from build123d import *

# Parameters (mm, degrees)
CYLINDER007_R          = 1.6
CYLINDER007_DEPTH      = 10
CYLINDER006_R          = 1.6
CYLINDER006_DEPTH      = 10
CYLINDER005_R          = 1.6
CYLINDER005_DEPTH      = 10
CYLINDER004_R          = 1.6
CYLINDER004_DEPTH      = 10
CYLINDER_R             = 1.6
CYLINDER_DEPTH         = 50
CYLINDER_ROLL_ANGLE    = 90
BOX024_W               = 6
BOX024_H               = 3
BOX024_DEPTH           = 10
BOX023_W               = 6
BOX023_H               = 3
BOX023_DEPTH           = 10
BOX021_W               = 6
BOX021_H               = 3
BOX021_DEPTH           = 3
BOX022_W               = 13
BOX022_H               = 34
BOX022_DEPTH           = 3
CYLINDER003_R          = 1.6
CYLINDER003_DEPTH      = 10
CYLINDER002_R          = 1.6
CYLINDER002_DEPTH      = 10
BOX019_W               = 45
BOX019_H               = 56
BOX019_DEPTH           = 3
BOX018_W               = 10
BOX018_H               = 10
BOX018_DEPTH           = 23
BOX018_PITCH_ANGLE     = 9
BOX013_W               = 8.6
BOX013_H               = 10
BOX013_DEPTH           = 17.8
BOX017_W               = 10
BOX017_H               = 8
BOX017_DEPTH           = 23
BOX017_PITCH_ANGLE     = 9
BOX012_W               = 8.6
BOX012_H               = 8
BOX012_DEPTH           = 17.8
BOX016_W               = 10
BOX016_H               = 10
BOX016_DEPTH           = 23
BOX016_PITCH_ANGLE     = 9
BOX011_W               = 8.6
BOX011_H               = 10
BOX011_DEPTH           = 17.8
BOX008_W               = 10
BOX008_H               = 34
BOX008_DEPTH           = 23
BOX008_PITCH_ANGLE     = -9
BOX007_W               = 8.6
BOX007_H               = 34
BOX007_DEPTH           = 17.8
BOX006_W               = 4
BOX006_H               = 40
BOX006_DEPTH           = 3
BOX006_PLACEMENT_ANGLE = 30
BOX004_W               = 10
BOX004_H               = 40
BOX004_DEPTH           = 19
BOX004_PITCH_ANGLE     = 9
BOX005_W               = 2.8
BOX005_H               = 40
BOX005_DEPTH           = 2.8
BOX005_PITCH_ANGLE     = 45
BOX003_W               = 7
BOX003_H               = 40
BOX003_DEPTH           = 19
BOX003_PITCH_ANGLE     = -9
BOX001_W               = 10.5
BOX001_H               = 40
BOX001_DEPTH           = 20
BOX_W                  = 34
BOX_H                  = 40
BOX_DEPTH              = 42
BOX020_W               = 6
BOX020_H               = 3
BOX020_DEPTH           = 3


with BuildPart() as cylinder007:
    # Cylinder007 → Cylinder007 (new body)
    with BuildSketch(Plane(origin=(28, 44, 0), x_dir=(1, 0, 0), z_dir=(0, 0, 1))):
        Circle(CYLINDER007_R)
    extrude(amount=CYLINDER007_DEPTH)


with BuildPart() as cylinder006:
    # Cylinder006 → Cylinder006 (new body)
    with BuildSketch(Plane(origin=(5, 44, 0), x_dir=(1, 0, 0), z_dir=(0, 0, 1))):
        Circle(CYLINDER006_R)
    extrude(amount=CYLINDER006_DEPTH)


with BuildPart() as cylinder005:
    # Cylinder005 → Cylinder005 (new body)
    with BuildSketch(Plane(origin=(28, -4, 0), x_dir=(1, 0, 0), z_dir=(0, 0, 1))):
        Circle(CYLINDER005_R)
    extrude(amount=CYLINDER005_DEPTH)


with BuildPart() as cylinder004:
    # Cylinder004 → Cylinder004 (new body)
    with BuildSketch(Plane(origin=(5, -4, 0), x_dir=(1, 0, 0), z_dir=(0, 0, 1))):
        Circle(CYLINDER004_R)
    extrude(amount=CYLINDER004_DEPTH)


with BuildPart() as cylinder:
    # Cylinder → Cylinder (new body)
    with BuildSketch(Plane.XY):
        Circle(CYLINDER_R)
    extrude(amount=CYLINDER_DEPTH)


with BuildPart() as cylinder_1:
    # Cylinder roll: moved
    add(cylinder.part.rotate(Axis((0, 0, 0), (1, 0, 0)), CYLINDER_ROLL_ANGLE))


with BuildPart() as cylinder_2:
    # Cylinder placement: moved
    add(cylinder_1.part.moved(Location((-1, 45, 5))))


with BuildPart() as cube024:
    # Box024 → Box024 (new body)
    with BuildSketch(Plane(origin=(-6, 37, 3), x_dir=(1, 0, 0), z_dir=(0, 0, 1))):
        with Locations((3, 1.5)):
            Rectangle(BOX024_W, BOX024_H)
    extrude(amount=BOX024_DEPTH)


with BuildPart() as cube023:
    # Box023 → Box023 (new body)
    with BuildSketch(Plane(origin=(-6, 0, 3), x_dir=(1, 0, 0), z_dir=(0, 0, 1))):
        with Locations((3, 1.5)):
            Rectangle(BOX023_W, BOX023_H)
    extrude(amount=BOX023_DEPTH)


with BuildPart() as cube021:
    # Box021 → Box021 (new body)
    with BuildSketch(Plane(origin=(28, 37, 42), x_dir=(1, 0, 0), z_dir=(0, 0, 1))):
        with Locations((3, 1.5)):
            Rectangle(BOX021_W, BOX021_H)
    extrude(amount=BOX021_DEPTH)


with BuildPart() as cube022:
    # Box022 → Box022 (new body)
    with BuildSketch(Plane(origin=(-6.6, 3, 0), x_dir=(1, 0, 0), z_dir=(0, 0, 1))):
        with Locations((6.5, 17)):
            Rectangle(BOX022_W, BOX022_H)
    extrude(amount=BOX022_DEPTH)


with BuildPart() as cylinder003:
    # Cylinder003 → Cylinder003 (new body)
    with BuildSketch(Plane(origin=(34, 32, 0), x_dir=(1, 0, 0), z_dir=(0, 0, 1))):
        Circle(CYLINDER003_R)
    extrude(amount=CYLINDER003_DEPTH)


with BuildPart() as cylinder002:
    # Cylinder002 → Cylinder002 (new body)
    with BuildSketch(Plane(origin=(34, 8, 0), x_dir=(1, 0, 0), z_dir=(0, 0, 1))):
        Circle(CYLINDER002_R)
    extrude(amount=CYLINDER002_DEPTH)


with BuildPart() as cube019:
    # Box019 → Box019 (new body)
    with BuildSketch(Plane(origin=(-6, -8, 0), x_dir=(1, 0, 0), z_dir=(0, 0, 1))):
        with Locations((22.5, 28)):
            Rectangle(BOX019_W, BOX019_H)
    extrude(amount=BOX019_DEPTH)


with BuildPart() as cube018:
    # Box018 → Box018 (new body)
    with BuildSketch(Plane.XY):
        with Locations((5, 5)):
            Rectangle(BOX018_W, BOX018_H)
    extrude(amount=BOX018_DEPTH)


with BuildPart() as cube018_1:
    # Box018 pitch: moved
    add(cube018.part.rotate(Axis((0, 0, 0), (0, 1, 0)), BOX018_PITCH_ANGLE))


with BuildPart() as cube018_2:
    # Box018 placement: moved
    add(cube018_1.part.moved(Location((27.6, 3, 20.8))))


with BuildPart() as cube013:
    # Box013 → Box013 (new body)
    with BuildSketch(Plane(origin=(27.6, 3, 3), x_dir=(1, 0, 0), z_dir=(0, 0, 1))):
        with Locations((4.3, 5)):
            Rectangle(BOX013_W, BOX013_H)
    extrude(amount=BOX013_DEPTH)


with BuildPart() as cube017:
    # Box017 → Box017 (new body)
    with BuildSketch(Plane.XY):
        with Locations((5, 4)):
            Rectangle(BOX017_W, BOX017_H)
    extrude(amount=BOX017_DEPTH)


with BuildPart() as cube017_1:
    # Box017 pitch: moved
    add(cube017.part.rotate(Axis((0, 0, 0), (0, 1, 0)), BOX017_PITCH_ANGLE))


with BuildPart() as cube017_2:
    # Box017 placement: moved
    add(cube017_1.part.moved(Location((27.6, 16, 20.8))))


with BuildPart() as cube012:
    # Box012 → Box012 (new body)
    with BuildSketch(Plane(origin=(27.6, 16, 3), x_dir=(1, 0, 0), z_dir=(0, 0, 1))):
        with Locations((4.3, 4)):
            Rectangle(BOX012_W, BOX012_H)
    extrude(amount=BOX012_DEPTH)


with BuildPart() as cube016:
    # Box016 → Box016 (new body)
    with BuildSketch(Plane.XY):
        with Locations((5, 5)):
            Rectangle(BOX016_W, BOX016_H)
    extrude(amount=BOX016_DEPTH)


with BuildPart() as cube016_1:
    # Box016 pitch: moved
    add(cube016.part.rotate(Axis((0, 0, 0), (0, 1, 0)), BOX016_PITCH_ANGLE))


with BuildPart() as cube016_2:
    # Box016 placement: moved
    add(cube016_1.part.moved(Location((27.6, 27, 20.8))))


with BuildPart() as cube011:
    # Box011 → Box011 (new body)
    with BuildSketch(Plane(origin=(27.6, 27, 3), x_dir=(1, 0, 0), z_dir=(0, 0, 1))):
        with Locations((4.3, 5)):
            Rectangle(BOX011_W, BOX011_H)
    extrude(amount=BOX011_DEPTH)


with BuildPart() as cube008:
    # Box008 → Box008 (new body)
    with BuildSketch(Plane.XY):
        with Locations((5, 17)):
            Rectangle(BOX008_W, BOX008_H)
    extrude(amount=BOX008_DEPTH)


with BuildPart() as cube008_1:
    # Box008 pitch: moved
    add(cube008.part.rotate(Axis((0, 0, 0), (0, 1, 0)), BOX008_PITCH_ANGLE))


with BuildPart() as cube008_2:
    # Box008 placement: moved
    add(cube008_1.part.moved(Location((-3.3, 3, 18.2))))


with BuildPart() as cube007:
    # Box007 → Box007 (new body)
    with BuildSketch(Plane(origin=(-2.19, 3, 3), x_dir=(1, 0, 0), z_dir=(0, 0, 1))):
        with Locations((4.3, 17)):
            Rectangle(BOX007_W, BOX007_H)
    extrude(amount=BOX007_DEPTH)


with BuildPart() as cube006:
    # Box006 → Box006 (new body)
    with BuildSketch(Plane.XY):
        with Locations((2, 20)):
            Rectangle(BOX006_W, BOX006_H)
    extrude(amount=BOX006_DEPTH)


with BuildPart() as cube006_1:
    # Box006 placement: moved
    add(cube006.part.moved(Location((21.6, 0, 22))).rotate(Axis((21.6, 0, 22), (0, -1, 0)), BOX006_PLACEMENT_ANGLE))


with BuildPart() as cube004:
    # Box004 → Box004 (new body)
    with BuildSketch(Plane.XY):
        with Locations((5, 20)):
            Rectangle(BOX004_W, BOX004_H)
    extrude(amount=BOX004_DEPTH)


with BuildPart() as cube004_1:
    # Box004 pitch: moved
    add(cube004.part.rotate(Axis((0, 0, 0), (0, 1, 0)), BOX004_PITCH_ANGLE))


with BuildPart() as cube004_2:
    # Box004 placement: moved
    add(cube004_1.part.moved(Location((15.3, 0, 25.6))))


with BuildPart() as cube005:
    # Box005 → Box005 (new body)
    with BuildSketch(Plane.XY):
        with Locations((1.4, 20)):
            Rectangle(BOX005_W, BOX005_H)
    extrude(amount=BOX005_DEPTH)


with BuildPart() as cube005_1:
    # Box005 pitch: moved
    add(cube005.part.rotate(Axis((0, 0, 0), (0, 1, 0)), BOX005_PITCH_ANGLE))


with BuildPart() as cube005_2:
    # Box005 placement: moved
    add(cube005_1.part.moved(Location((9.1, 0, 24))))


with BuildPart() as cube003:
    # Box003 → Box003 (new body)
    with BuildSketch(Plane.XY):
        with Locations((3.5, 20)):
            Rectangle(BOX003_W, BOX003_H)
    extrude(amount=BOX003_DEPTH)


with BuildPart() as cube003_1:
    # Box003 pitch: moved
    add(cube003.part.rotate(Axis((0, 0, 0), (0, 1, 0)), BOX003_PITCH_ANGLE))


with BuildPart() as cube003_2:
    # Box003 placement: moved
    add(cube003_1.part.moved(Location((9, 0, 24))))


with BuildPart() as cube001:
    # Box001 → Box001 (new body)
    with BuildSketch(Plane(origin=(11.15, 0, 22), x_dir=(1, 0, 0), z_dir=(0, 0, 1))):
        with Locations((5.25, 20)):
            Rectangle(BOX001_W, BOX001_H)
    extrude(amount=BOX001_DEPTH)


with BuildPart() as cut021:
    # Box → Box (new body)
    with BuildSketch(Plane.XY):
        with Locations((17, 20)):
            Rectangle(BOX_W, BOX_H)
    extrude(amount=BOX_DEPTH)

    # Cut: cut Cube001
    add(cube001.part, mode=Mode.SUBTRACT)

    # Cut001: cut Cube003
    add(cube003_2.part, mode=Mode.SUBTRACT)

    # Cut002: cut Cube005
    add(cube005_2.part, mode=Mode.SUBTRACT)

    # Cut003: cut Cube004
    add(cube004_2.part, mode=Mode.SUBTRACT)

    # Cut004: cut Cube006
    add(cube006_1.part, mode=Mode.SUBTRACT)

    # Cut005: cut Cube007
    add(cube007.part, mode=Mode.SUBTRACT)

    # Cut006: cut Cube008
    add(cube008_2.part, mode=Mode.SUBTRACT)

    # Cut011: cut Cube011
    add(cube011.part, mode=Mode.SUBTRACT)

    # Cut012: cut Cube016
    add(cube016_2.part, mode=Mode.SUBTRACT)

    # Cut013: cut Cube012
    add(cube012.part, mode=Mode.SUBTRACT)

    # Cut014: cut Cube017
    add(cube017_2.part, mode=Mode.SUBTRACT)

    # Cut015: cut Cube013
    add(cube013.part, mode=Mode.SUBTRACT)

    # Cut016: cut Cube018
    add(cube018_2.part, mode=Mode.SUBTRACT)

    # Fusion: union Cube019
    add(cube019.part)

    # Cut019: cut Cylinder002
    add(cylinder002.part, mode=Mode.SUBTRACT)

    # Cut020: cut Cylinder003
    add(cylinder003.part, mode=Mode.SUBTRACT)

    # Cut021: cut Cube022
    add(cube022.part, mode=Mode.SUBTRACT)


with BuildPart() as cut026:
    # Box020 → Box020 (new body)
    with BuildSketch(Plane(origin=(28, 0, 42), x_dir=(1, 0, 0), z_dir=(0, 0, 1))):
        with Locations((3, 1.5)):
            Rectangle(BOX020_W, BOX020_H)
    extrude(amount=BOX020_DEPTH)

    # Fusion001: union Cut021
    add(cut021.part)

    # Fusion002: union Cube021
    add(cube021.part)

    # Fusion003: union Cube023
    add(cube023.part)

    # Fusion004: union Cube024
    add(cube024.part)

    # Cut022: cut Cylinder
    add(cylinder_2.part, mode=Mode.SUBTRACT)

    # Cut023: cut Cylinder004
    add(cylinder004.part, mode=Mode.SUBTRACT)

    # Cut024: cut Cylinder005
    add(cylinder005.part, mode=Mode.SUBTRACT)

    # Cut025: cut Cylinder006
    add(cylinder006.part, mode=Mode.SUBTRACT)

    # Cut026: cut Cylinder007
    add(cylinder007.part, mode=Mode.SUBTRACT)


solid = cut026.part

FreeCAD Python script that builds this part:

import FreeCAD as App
import Part
import Sketcher

V = App.Vector
Q = App.Units.Quantity

doc = App.newDocument("Part")
params = doc.addObject("Spreadsheet::Sheet", "Params")
for row, (alias, value) in enumerate([
    ("sketch1_diameter", "3.2 mm"),
    ("pad1_length", "10 mm"),
    ("sketch2_diameter", "3.2 mm"),
    ("pad2_length", "10 mm"),
    ("sketch3_diameter", "3.2 mm"),
    ("pad3_length", "10 mm"),
    ("sketch4_diameter", "3.2 mm"),
    ("pad4_length", "10 mm"),
    ("sketch5_diameter", "3.2 mm"),
    ("pad5_length", "50 mm"),
    ("sketch6_width", "6 mm"),
    ("sketch6_height", "3 mm"),
    ("pad6_length", "10 mm"),
    ("sketch7_width", "6 mm"),
    ("sketch7_height", "3 mm"),
    ("pad7_length", "10 mm"),
    ("sketch8_width", "6 mm"),
    ("sketch8_height", "3 mm"),
    ("pad8_length", "3 mm"),
    ("sketch9_width", "13 mm"),
    ("sketch9_height", "34 mm"),
    ("pad9_length", "3 mm"),
    ("sketch10_diameter", "3.2 mm"),
    ("pad10_length", "10 mm"),
    ("sketch11_diameter", "3.2 mm"),
    ("pad11_length", "10 mm"),
    ("sketch12_width", "45 mm"),
    ("sketch12_height", "56 mm"),
    ("pad12_length", "3 mm"),
    ("sketch13_width", "10 mm"),
    ("pad13_length", "23 mm"),
    ("sketch14_height", "10 mm"),
    ("sketch14_width", "8.6 mm"),
    ("pad14_length", "17.8 mm"),
    ("sketch15_width", "10 mm"),
    ("sketch15_height", "8 mm"),
    ("pad15_length", "23 mm"),
    ("sketch16_height", "8 mm"),
    ("sketch16_width", "8.6 mm"),
    ("pad16_length", "17.8 mm"),
    ("sketch17_width", "10 mm"),
    ("pad17_length", "23 mm"),
    ("sketch18_height", "10 mm"),
    ("sketch18_width", "8.6 mm"),
    ("pad18_length", "17.8 mm"),
    ("sketch19_width", "10 mm"),
    ("sketch19_height", "34 mm"),
    ("pad19_length", "23 mm"),
    ("sketch20_height", "34 mm"),
    ("sketch20_width", "8.6 mm"),
    ("pad20_length", "17.8 mm"),
    ("sketch21_width", "4 mm"),
    ("sketch21_height", "40 mm"),
    ("pad21_length", "3 mm"),
    ("sketch22_width", "10 mm"),
    ("sketch22_height", "40 mm"),
    ("pad22_length", "19 mm"),
    ("sketch23_height", "40 mm"),
    ("sketch23_width", "2.8 mm"),
    ("pad23_length", "2.8 mm"),
    ("sketch24_width", "7 mm"),
    ("sketch24_height", "40 mm"),
    ("pad24_length", "19 mm"),
    ("sketch25_height", "40 mm"),
    ("sketch25_width", "10.5 mm"),
    ("pad25_length", "20 mm"),
    ("sketch26_width", "34 mm"),
    ("sketch26_height", "40 mm"),
    ("pad26_length", "42 mm"),
    ("sketch27_width", "6 mm"),
    ("sketch27_height", "3 mm"),
    ("pad27_length", "3 mm"),
], start=1):
    params.set(f"A{row}", alias)
    params.set(f"B{row}", "=" + value)
    params.setAlias(f"B{row}", alias)

body = doc.addObject("PartDesign::Body", "Body")

sketch1 = doc.addObject("Sketcher::SketchObject", "Sketch")
body.addObject(sketch1)
sketch1.AttachmentSupport = (doc.XY_Plane, [""])
sketch1.MapMode = "FlatFace"
sketch1.addGeometry(Part.Circle(V(28, 44, 0), V(0, 0, 1), 1.6), False)
sketch1.addConstraint([
    Sketcher.Constraint("Diameter", 0, Q("3.2 mm")),
    Sketcher.Constraint("DistanceX", -1, 1, 0, 3, Q("28 mm")),
    Sketcher.Constraint("DistanceY", -1, 1, 0, 3, Q("44 mm")),
])
sketch1.setExpression("Constraints[0]", "Params.sketch1_diameter")
pad1 = doc.addObject("PartDesign::Pad", "Pad")
body.addObject(pad1)
pad1.Profile = sketch1
pad1.setExpression("Length", "Params.pad1_length")
body2 = doc.addObject("PartDesign::Body", "Body001")

sketch2 = doc.addObject("Sketcher::SketchObject", "Sketch001")
body2.addObject(sketch2)
sketch2.AttachmentSupport = (doc.getObject("XY_Plane001"), [""])
sketch2.MapMode = "FlatFace"
sketch2.addGeometry(Part.Circle(V(5, 44, 0), V(0, 0, 1), 1.6), False)
sketch2.addConstraint([
    Sketcher.Constraint("Diameter", 0, Q("3.2 mm")),
    Sketcher.Constraint("DistanceX", -1, 1, 0, 3, Q("5 mm")),
    Sketcher.Constraint("DistanceY", -1, 1, 0, 3, Q("44 mm")),
])
sketch2.setExpression("Constraints[0]", "Params.sketch2_diameter")
pad2 = doc.addObject("PartDesign::Pad", "Pad001")
body2.addObject(pad2)
pad2.Profile = sketch2
pad2.setExpression("Length", "Params.pad2_length")
body3 = doc.addObject("PartDesign::Body", "Body002")

sketch3 = doc.addObject("Sketcher::SketchObject", "Sketch002")
body3.addObject(sketch3)
sketch3.AttachmentSupport = (doc.getObject("XY_Plane002"), [""])
sketch3.MapMode = "FlatFace"
sketch3.addGeometry(Part.Circle(V(28, -4, 0), V(0, 0, 1), 1.6), False)
sketch3.addConstraint([
    Sketcher.Constraint("Diameter", 0, Q("3.2 mm")),
    Sketcher.Constraint("DistanceX", -1, 1, 0, 3, Q("28 mm")),
    Sketcher.Constraint("DistanceY", 0, 3, -1, 1, Q("4 mm")),
])
sketch3.setExpression("Constraints[0]", "Params.sketch3_diameter")
pad3 = doc.addObject("PartDesign::Pad", "Pad002")
body3.addObject(pad3)
pad3.Profile = sketch3
pad3.setExpression("Length", "Params.pad3_length")
body4 = doc.addObject("PartDesign::Body", "Body003")

sketch4 = doc.addObject("Sketcher::SketchObject", "Sketch003")
body4.addObject(sketch4)
sketch4.AttachmentSupport = (doc.getObject("XY_Plane003"), [""])
sketch4.MapMode = "FlatFace"
sketch4.addGeometry(Part.Circle(V(5, -4, 0), V(0, 0, 1), 1.6), False)
sketch4.addConstraint([
    Sketcher.Constraint("Diameter", 0, Q("3.2 mm")),
    Sketcher.Constraint("DistanceX", -1, 1, 0, 3, Q("5 mm")),
    Sketcher.Constraint("DistanceY", 0, 3, -1, 1, Q("4 mm")),
])
sketch4.setExpression("Constraints[0]", "Params.sketch4_diameter")
pad4 = doc.addObject("PartDesign::Pad", "Pad003")
body4.addObject(pad4)
pad4.Profile = sketch4
pad4.setExpression("Length", "Params.pad4_length")
body5 = doc.addObject("PartDesign::Body", "Body004")

sketch5 = doc.addObject("Sketcher::SketchObject", "Sketch004")
body5.addObject(sketch5)
sketch5.AttachmentSupport = (doc.getObject("XY_Plane004"), [""])
sketch5.MapMode = "FlatFace"
sketch5.addGeometry(Part.Circle(V(0, 0, 0), V(0, 0, 1), 1.6), False)
sketch5.addConstraint([
    Sketcher.Constraint("Coincident", 0, 3, -1, 1),
    Sketcher.Constraint("Diameter", 0, Q("3.2 mm")),
])
sketch5.setExpression("Constraints[1]", "Params.sketch5_diameter")
pad5 = doc.addObject("PartDesign::Pad", "Pad004")
body5.addObject(pad5)
pad5.Profile = sketch5
pad5.setExpression("Length", "Params.pad5_length")
body6 = doc.addObject("PartDesign::Body", "Body005")
doc.recompute()

body5.Placement = App.Placement(V(0, 0, 0), App.Rotation(V(1, 0, 0), 90))
boolean = doc.addObject("PartDesign::Boolean", "Boolean")
body6.addObject(boolean)
boolean.Type = "Fuse"
boolean.addObjects([body5])
body7 = doc.addObject("PartDesign::Body", "Body006")
doc.recompute()

body6.Placement = App.Placement(V(-1, 45, 5), App.Rotation(V(0, 0, 1), 0))
boolean2 = doc.addObject("PartDesign::Boolean", "Boolean001")
body7.addObject(boolean2)
boolean2.Type = "Fuse"
boolean2.addObjects([body6])
body8 = doc.addObject("PartDesign::Body", "Body007")

sketch6 = doc.addObject("Sketcher::SketchObject", "Sketch005")
body8.addObject(sketch6)
sketch6.AttachmentSupport = (doc.getObject("XY_Plane007"), [""])
sketch6.MapMode = "FlatFace"
sketch6.AttachmentOffset = App.Placement(V(0, 0, 3), App.Rotation())
sketch6.addGeometry([
    Part.LineSegment(V(-6, 40, 0), V(-6, 37, 0)),
    Part.LineSegment(V(-6, 37, 0), V(0, 37, 0)),
    Part.LineSegment(V(0, 37, 0), V(0, 40, 0)),
    Part.LineSegment(V(0, 40, 0), V(-6, 40, 0)),
], False)
sketch6.addConstraint([
    Sketcher.Constraint("Coincident", 0, 2, 1, 1),
    Sketcher.Constraint("Coincident", 1, 2, 2, 1),
    Sketcher.Constraint("Coincident", 2, 2, 3, 1),
    Sketcher.Constraint("Coincident", 3, 2, 0, 1),
    Sketcher.Constraint("Vertical", 0),
    Sketcher.Constraint("Horizontal", 1),
    Sketcher.Constraint("Vertical", 2),
    Sketcher.Constraint("Horizontal", 3),
    Sketcher.Constraint("PointOnObject", 1, 2, -2),
    Sketcher.Constraint("DistanceX", 1, 1, 1, 2, Q("6 mm")),
    Sketcher.Constraint("DistanceY", 0, 2, 0, 1, Q("3 mm")),
    Sketcher.Constraint("DistanceY", -1, 1, 0, 2, Q("37 mm")),
])
sketch6.setExpression("Constraints[9]", "Params.sketch6_width")
sketch6.setExpression("Constraints[10]", "Params.sketch6_height")
pad6 = doc.addObject("PartDesign::Pad", "Pad005")
body8.addObject(pad6)
pad6.Profile = sketch6
pad6.setExpression("Length", "Params.pad6_length")
body9 = doc.addObject("PartDesign::Body", "Body008")

sketch7 = doc.addObject("Sketcher::SketchObject", "Sketch006")
body9.addObject(sketch7)
sketch7.AttachmentSupport = (doc.getObject("XY_Plane008"), [""])
sketch7.MapMode = "FlatFace"
sketch7.AttachmentOffset = App.Placement(V(0, 0, 3), App.Rotation())
sketch7.addGeometry([
    Part.LineSegment(V(-6, 3, 0), V(-6, 0, 0)),
    Part.LineSegment(V(-6, 0, 0), V(0, 0, 0)),
    Part.LineSegment(V(0, 0, 0), V(0, 3, 0)),
    Part.LineSegment(V(0, 3, 0), V(-6, 3, 0)),
], False)
sketch7.addConstraint([
    Sketcher.Constraint("Coincident", 0, 2, 1, 1),
    Sketcher.Constraint("Coincident", 1, 2, 2, 1),
    Sketcher.Constraint("Coincident", 2, 2, 3, 1),
    Sketcher.Constraint("Coincident", 3, 2, 0, 1),
    Sketcher.Constraint("Vertical", 0),
    Sketcher.Constraint("Horizontal", 1),
    Sketcher.Constraint("Vertical", 2),
    Sketcher.Constraint("Horizontal", 3),
    Sketcher.Constraint("Coincident", 1, 2, -1, 1),
    Sketcher.Constraint("DistanceX", 1, 1, 1, 2, Q("6 mm")),
    Sketcher.Constraint("DistanceY", 0, 2, 0, 1, Q("3 mm")),
])
sketch7.setExpression("Constraints[9]", "Params.sketch7_width")
sketch7.setExpression("Constraints[10]", "Params.sketch7_height")
pad7 = doc.addObject("PartDesign::Pad", "Pad006")
body9.addObject(pad7)
pad7.Profile = sketch7
pad7.setExpression("Length", "Params.pad7_length")
body10 = doc.addObject("PartDesign::Body", "Body009")

sketch8 = doc.addObject("Sketcher::SketchObject", "Sketch007")
body10.addObject(sketch8)
sketch8.AttachmentSupport = (doc.getObject("XY_Plane009"), [""])
sketch8.MapMode = "FlatFace"
sketch8.AttachmentOffset = App.Placement(V(0, 0, 42), App.Rotation())
sketch8.addGeometry([
    Part.LineSegment(V(28, 40, 0), V(28, 37, 0)),
    Part.LineSegment(V(28, 37, 0), V(34, 37, 0)),
    Part.LineSegment(V(34, 37, 0), V(34, 40, 0)),
    Part.LineSegment(V(34, 40, 0), V(28, 40, 0)),
], False)
sketch8.addConstraint([
    Sketcher.Constraint("Coincident", 0, 2, 1, 1),
    Sketcher.Constraint("Coincident", 1, 2, 2, 1),
    Sketcher.Constraint("Coincident", 2, 2, 3, 1),
    Sketcher.Constraint("Coincident", 3, 2, 0, 1),
    Sketcher.Constraint("Vertical", 0),
    Sketcher.Constraint("Horizontal", 1),
    Sketcher.Constraint("Vertical", 2),
    Sketcher.Constraint("Horizontal", 3),
    Sketcher.Constraint("DistanceX", 1, 1, 1, 2, Q("6 mm")),
    Sketcher.Constraint("DistanceY", 0, 2, 0, 1, Q("3 mm")),
    Sketcher.Constraint("DistanceX", -1, 1, 0, 2, Q("28 mm")),
    Sketcher.Constraint("DistanceY", -1, 1, 0, 2, Q("37 mm")),
])
sketch8.setExpression("Constraints[8]", "Params.sketch8_width")
sketch8.setExpression("Constraints[9]", "Params.sketch8_height")
pad8 = doc.addObject("PartDesign::Pad", "Pad007")
body10.addObject(pad8)
pad8.Profile = sketch8
pad8.setExpression("Length", "Params.pad8_length")
body11 = doc.addObject("PartDesign::Body", "Body010")

sketch9 = doc.addObject("Sketcher::SketchObject", "Sketch008")
body11.addObject(sketch9)
sketch9.AttachmentSupport = (doc.getObject("XY_Plane010"), [""])
sketch9.MapMode = "FlatFace"
sketch9.addGeometry([
    Part.LineSegment(V(-7, 37, 0), V(-7, 3, 0)),
    Part.LineSegment(V(-7, 3, 0), V(6, 3, 0)),
    Part.LineSegment(V(6, 3, 0), V(6, 37, 0)),
    Part.LineSegment(V(6, 37, 0), V(-7, 37, 0)),
], False)
sketch9.addConstraint([
    Sketcher.Constraint("Coincident", 0, 2, 1, 1),
    Sketcher.Constraint("Coincident", 1, 2, 2, 1),
    Sketcher.Constraint("Coincident", 2, 2, 3, 1),
    Sketcher.Constraint("Coincident", 3, 2, 0, 1),
    Sketcher.Constraint("Vertical", 0),
    Sketcher.Constraint("Horizontal", 1),
    Sketcher.Constraint("Vertical", 2),
    Sketcher.Constraint("Horizontal", 3),
    Sketcher.Constraint("DistanceX", 1, 1, 1, 2, Q("13 mm")),
    Sketcher.Constraint("DistanceY", 0, 2, 0, 1, Q("34 mm")),
    Sketcher.Constraint("DistanceY", -1, 1, 0, 2, Q("3 mm")),
    Sketcher.Constraint("DistanceX", 0, 2, -1, 1, Q("6.6 mm")),
])
sketch9.setExpression("Constraints[8]", "Params.sketch9_width")
sketch9.setExpression("Constraints[9]", "Params.sketch9_height")
pad9 = doc.addObject("PartDesign::Pad", "Pad008")
body11.addObject(pad9)
pad9.Profile = sketch9
pad9.setExpression("Length", "Params.pad9_length")
body12 = doc.addObject("PartDesign::Body", "Body011")

sketch10 = doc.addObject("Sketcher::SketchObject", "Sketch009")
body12.addObject(sketch10)
sketch10.AttachmentSupport = (doc.getObject("XY_Plane011"), [""])
sketch10.MapMode = "FlatFace"
sketch10.addGeometry(Part.Circle(V(34, 32, 0), V(0, 0, 1), 1.6), False)
sketch10.addConstraint([
    Sketcher.Constraint("Diameter", 0, Q("3.2 mm")),
    Sketcher.Constraint("DistanceX", -1, 1, 0, 3, Q("34 mm")),
    Sketcher.Constraint("DistanceY", -1, 1, 0, 3, Q("32 mm")),
])
sketch10.setExpression("Constraints[0]", "Params.sketch10_diameter")
pad10 = doc.addObject("PartDesign::Pad", "Pad009")
body12.addObject(pad10)
pad10.Profile = sketch10
pad10.setExpression("Length", "Params.pad10_length")
body13 = doc.addObject("PartDesign::Body", "Body012")

sketch11 = doc.addObject("Sketcher::SketchObject", "Sketch010")
body13.addObject(sketch11)
sketch11.AttachmentSupport = (doc.getObject("XY_Plane012"), [""])
sketch11.MapMode = "FlatFace"
sketch11.addGeometry(Part.Circle(V(34, 8, 0), V(0, 0, 1), 1.6), False)
sketch11.addConstraint([
    Sketcher.Constraint("Diameter", 0, Q("3.2 mm")),
    Sketcher.Constraint("DistanceX", -1, 1, 0, 3, Q("34 mm")),
    Sketcher.Constraint("DistanceY", -1, 1, 0, 3, Q("8 mm")),
])
sketch11.setExpression("Constraints[0]", "Params.sketch11_diameter")
pad11 = doc.addObject("PartDesign::Pad", "Pad010")
body13.addObject(pad11)
pad11.Profile = sketch11
pad11.setExpression("Length", "Params.pad11_length")
body14 = doc.addObject("PartDesign::Body", "Body013")

sketch12 = doc.addObject("Sketcher::SketchObject", "Sketch011")
body14.addObject(sketch12)
sketch12.AttachmentSupport = (doc.getObject("XY_Plane013"), [""])
sketch12.MapMode = "FlatFace"
sketch12.addGeometry([
    Part.LineSegment(V(-6, 48, 0), V(-6, -8, 0)),
    Part.LineSegment(V(-6, -8, 0), V(39, -8, 0)),
    Part.LineSegment(V(39, -8, 0), V(39, 48, 0)),
    Part.LineSegment(V(39, 48, 0), V(-6, 48, 0)),
], False)
sketch12.addConstraint([
    Sketcher.Constraint("Coincident", 0, 2, 1, 1),
    Sketcher.Constraint("Coincident", 1, 2, 2, 1),
    Sketcher.Constraint("Coincident", 2, 2, 3, 1),
    Sketcher.Constraint("Coincident", 3, 2, 0, 1),
    Sketcher.Constraint("Vertical", 0),
    Sketcher.Constraint("Horizontal", 1),
    Sketcher.Constraint("Vertical", 2),
    Sketcher.Constraint("Horizontal", 3),
    Sketcher.Constraint("DistanceX", 1, 1, 1, 2, Q("45 mm")),
    Sketcher.Constraint("DistanceY", 0, 2, 0, 1, Q("56 mm")),
    Sketcher.Constraint("DistanceX", 0, 2, -1, 1, Q("6 mm")),
    Sketcher.Constraint("DistanceY", 0, 2, -1, 1, Q("8 mm")),
])
sketch12.setExpression("Constraints[8]", "Params.sketch12_width")
sketch12.setExpression("Constraints[9]", "Params.sketch12_height")
pad12 = doc.addObject("PartDesign::Pad", "Pad011")
body14.addObject(pad12)
pad12.Profile = sketch12
pad12.setExpression("Length", "Params.pad12_length")
body15 = doc.addObject("PartDesign::Body", "Body014")

sketch13 = doc.addObject("Sketcher::SketchObject", "Sketch012")
body15.addObject(sketch13)
sketch13.AttachmentSupport = (doc.getObject("XY_Plane014"), [""])
sketch13.MapMode = "FlatFace"
sketch13.addGeometry([
    Part.LineSegment(V(0, 10, 0), V(0, 0, 0)),
    Part.LineSegment(V(0, 0, 0), V(10, 0, 0)),
    Part.LineSegment(V(10, 0, 0), V(10, 10, 0)),
    Part.LineSegment(V(10, 10, 0), V(0, 10, 0)),
], False)
sketch13.addConstraint([
    Sketcher.Constraint("Coincident", 0, 2, 1, 1),
    Sketcher.Constraint("Coincident", 1, 2, 2, 1),
    Sketcher.Constraint("Coincident", 2, 2, 3, 1),
    Sketcher.Constraint("Coincident", 3, 2, 0, 1),
    Sketcher.Constraint("Vertical", 0),
    Sketcher.Constraint("Horizontal", 1),
    Sketcher.Constraint("Vertical", 2),
    Sketcher.Constraint("Horizontal", 3),
    Sketcher.Constraint("Coincident", 0, 2, -1, 1),
    Sketcher.Constraint("Equal", 3, 0),
    Sketcher.Constraint("DistanceX", 1, 1, 1, 2, Q("10 mm")),
])
sketch13.setExpression("Constraints[10]", "Params.sketch13_width")
pad13 = doc.addObject("PartDesign::Pad", "Pad012")
body15.addObject(pad13)
pad13.Profile = sketch13
pad13.setExpression("Length", "Params.pad13_length")
body16 = doc.addObject("PartDesign::Body", "Body015")
doc.recompute()

body15.Placement = App.Placement(V(0, 0, 0), App.Rotation(V(0, 1, 0), 9))
boolean3 = doc.addObject("PartDesign::Boolean", "Boolean002")
body16.addObject(boolean3)
boolean3.Type = "Fuse"
boolean3.addObjects([body15])
body17 = doc.addObject("PartDesign::Body", "Body016")
doc.recompute()

body16.Placement = App.Placement(V(27.6, 3, 20.8), App.Rotation(V(0, 0, 1), 0))
boolean4 = doc.addObject("PartDesign::Boolean", "Boolean003")
body17.addObject(boolean4)
boolean4.Type = "Fuse"
boolean4.addObjects([body16])
body18 = doc.addObject("PartDesign::Body", "Body017")

sketch14 = doc.addObject("Sketcher::SketchObject", "Sketch013")
body18.addObject(sketch14)
sketch14.AttachmentSupport = (doc.getObject("XY_Plane017"), [""])
sketch14.MapMode = "FlatFace"
sketch14.AttachmentOffset = App.Placement(V(0, 0, 3), App.Rotation())
sketch14.addGeometry([
    Part.LineSegment(V(28, 13, 0), V(28, 3, 0)),
    Part.LineSegment(V(28, 3, 0), V(36, 3, 0)),
    Part.LineSegment(V(36, 3, 0), V(36, 13, 0)),
    Part.LineSegment(V(36, 13, 0), V(28, 13, 0)),
], False)
sketch14.addConstraint([
    Sketcher.Constraint("Coincident", 0, 2, 1, 1),
    Sketcher.Constraint("Coincident", 1, 2, 2, 1),
    Sketcher.Constraint("Coincident", 2, 2, 3, 1),
    Sketcher.Constraint("Coincident", 3, 2, 0, 1),
    Sketcher.Constraint("Vertical", 0),
    Sketcher.Constraint("Horizontal", 1),
    Sketcher.Constraint("Vertical", 2),
    Sketcher.Constraint("Horizontal", 3),
    Sketcher.Constraint("DistanceY", 0, 2, 0, 1, Q("10 mm")),
    Sketcher.Constraint("DistanceX", 1, 1, 1, 2, Q("8.6 mm")),
    Sketcher.Constraint("DistanceY", -1, 1, 0, 2, Q("3 mm")),
    Sketcher.Constraint("DistanceX", -1, 1, 0, 2, Q("27.6 mm")),
])
sketch14.setExpression("Constraints[8]", "Params.sketch14_height")
sketch14.setExpression("Constraints[9]", "Params.sketch14_width")
pad14 = doc.addObject("PartDesign::Pad", "Pad013")
body18.addObject(pad14)
pad14.Profile = sketch14
pad14.setExpression("Length", "Params.pad14_length")
body19 = doc.addObject("PartDesign::Body", "Body018")

sketch15 = doc.addObject("Sketcher::SketchObject", "Sketch014")
body19.addObject(sketch15)
sketch15.AttachmentSupport = (doc.getObject("XY_Plane018"), [""])
sketch15.MapMode = "FlatFace"
sketch15.addGeometry([
    Part.LineSegment(V(0, 8, 0), V(0, 0, 0)),
    Part.LineSegment(V(0, 0, 0), V(10, 0, 0)),
    Part.LineSegment(V(10, 0, 0), V(10, 8, 0)),
    Part.LineSegment(V(10, 8, 0), V(0, 8, 0)),
], False)
sketch15.addConstraint([
    Sketcher.Constraint("Coincident", 0, 2, 1, 1),
    Sketcher.Constraint("Coincident", 1, 2, 2, 1),
    Sketcher.Constraint("Coincident", 2, 2, 3, 1),
    Sketcher.Constraint("Coincident", 3, 2, 0, 1),
    Sketcher.Constraint("Vertical", 0),
    Sketcher.Constraint("Horizontal", 1),
    Sketcher.Constraint("Vertical", 2),
    Sketcher.Constraint("Horizontal", 3),
    Sketcher.Constraint("Coincident", 0, 2, -1, 1),
    Sketcher.Constraint("DistanceX", 1, 1, 1, 2, Q("10 mm")),
    Sketcher.Constraint("DistanceY", 0, 2, 0, 1, Q("8 mm")),
])
sketch15.setExpression("Constraints[9]", "Params.sketch15_width")
sketch15.setExpression("Constraints[10]", "Params.sketch15_height")
pad15 = doc.addObject("PartDesign::Pad", "Pad014")
body19.addObject(pad15)
pad15.Profile = sketch15
pad15.setExpression("Length", "Params.pad15_length")
body20 = doc.addObject("PartDesign::Body", "Body019")
doc.recompute()

body19.Placement = App.Placement(V(0, 0, 0), App.Rotation(V(0, 1, 0), 9))
boolean5 = doc.addObject("PartDesign::Boolean", "Boolean004")
body20.addObject(boolean5)
boolean5.Type = "Fuse"
boolean5.addObjects([body19])
body21 = doc.addObject("PartDesign::Body", "Body020")
doc.recompute()

body20.Placement = App.Placement(V(27.6, 16, 20.8), App.Rotation(V(0, 0, 1), 0))
boolean6 = doc.addObject("PartDesign::Boolean", "Boolean005")
body21.addObject(boolean6)
boolean6.Type = "Fuse"
boolean6.addObjects([body20])
body22 = doc.addObject("PartDesign::Body", "Body021")

sketch16 = doc.addObject("Sketcher::SketchObject", "Sketch015")
body22.addObject(sketch16)
sketch16.AttachmentSupport = (doc.getObject("XY_Plane021"), [""])
sketch16.MapMode = "FlatFace"
sketch16.AttachmentOffset = App.Placement(V(0, 0, 3), App.Rotation())
sketch16.addGeometry([
    Part.LineSegment(V(28, 24, 0), V(28, 16, 0)),
    Part.LineSegment(V(28, 16, 0), V(36, 16, 0)),
    Part.LineSegment(V(36, 16, 0), V(36, 24, 0)),
    Part.LineSegment(V(36, 24, 0), V(28, 24, 0)),
], False)
sketch16.addConstraint([
    Sketcher.Constraint("Coincident", 0, 2, 1, 1),
    Sketcher.Constraint("Coincident", 1, 2, 2, 1),
    Sketcher.Constraint("Coincident", 2, 2, 3, 1),
    Sketcher.Constraint("Coincident", 3, 2, 0, 1),
    Sketcher.Constraint("Vertical", 0),
    Sketcher.Constraint("Horizontal", 1),
    Sketcher.Constraint("Vertical", 2),
    Sketcher.Constraint("Horizontal", 3),
    Sketcher.Constraint("DistanceY", 0, 2, 0, 1, Q("8 mm")),
    Sketcher.Constraint("DistanceX", 1, 1, 1, 2, Q("8.6 mm")),
    Sketcher.Constraint("DistanceY", -1, 1, 0, 2, Q("16 mm")),
    Sketcher.Constraint("DistanceX", -1, 1, 0, 2, Q("27.6 mm")),
])
sketch16.setExpression("Constraints[8]", "Params.sketch16_height")
sketch16.setExpression("Constraints[9]", "Params.sketch16_width")
pad16 = doc.addObject("PartDesign::Pad", "Pad015")
body22.addObject(pad16)
pad16.Profile = sketch16
pad16.setExpression("Length", "Params.pad16_length")
body23 = doc.addObject("PartDesign::Body", "Body022")

sketch17 = doc.addObject("Sketcher::SketchObject", "Sketch016")
body23.addObject(sketch17)
sketch17.AttachmentSupport = (doc.getObject("XY_Plane022"), [""])
sketch17.MapMode = "FlatFace"
sketch17.addGeometry([
    Part.LineSegment(V(0, 10, 0), V(0, 0, 0)),
    Part.LineSegment(V(0, 0, 0), V(10, 0, 0)),
    Part.LineSegment(V(10, 0, 0), V(10, 10, 0)),
    Part.LineSegment(V(10, 10, 0), V(0, 10, 0)),
], False)
sketch17.addConstraint([
    Sketcher.Constraint("Coincident", 0, 2, 1, 1),
    Sketcher.Constraint("Coincident", 1, 2, 2, 1),
    Sketcher.Constraint("Coincident", 2, 2, 3, 1),
    Sketcher.Constraint("Coincident", 3, 2, 0, 1),
    Sketcher.Constraint("Vertical", 0),
    Sketcher.Constraint("Horizontal", 1),
    Sketcher.Constraint("Vertical", 2),
    Sketcher.Constraint("Horizontal", 3),
    Sketcher.Constraint("Coincident", 0, 2, -1, 1),
    Sketcher.Constraint("Equal", 3, 0),
    Sketcher.Constraint("DistanceX", 1, 1, 1, 2, Q("10 mm")),
])
sketch17.setExpression("Constraints[10]", "Params.sketch17_width")
pad17 = doc.addObject("PartDesign::Pad", "Pad016")
body23.addObject(pad17)
pad17.Profile = sketch17
pad17.setExpression("Length", "Params.pad17_length")
body24 = doc.addObject("PartDesign::Body", "Body023")
doc.recompute()

body23.Placement = App.Placement(V(0, 0, 0), App.Rotation(V(0, 1, 0), 9))
boolean7 = doc.addObject("PartDesign::Boolean", "Boolean006")
body24.addObject(boolean7)
boolean7.Type = "Fuse"
boolean7.addObjects([body23])
body25 = doc.addObject("PartDesign::Body", "Body024")
doc.recompute()

body24.Placement = App.Placement(V(27.6, 27, 20.8), App.Rotation(V(0, 0, 1), 0))
boolean8 = doc.addObject("PartDesign::Boolean", "Boolean007")
body25.addObject(boolean8)
boolean8.Type = "Fuse"
boolean8.addObjects([body24])
body26 = doc.addObject("PartDesign::Body", "Body025")

sketch18 = doc.addObject("Sketcher::SketchObject", "Sketch017")
body26.addObject(sketch18)
sketch18.AttachmentSupport = (doc.getObject("XY_Plane025"), [""])
sketch18.MapMode = "FlatFace"
sketch18.AttachmentOffset = App.Placement(V(0, 0, 3), App.Rotation())
sketch18.addGeometry([
    Part.LineSegment(V(28, 37, 0), V(28, 27, 0)),
    Part.LineSegment(V(28, 27, 0), V(36, 27, 0)),
    Part.LineSegment(V(36, 27, 0), V(36, 37, 0)),
    Part.LineSegment(V(36, 37, 0), V(28, 37, 0)),
], False)
sketch18.addConstraint([
    Sketcher.Constraint("Coincident", 0, 2, 1, 1),
    Sketcher.Constraint("Coincident", 1, 2, 2, 1),
    Sketcher.Constraint("Coincident", 2, 2, 3, 1),
    Sketcher.Constraint("Coincident", 3, 2, 0, 1),
    Sketcher.Constraint("Vertical", 0),
    Sketcher.Constraint("Horizontal", 1),
    Sketcher.Constraint("Vertical", 2),
    Sketcher.Constraint("Horizontal", 3),
    Sketcher.Constraint("DistanceY", 0, 2, 0, 1, Q("10 mm")),
    Sketcher.Constraint("DistanceX", 1, 1, 1, 2, Q("8.6 mm")),
    Sketcher.Constraint("DistanceY", -1, 1, 0, 2, Q("27 mm")),
    Sketcher.Constraint("DistanceX", -1, 1, 0, 2, Q("27.6 mm")),
])
sketch18.setExpression("Constraints[8]", "Params.sketch18_height")
sketch18.setExpression("Constraints[9]", "Params.sketch18_width")
pad18 = doc.addObject("PartDesign::Pad", "Pad017")
body26.addObject(pad18)
pad18.Profile = sketch18
pad18.setExpression("Length", "Params.pad18_length")
body27 = doc.addObject("PartDesign::Body", "Body026")

sketch19 = doc.addObject("Sketcher::SketchObject", "Sketch018")
body27.addObject(sketch19)
sketch19.AttachmentSupport = (doc.getObject("XY_Plane026"), [""])
sketch19.MapMode = "FlatFace"
sketch19.addGeometry([
    Part.LineSegment(V(0, 34, 0), V(0, 0, 0)),
    Part.LineSegment(V(0, 0, 0), V(10, 0, 0)),
    Part.LineSegment(V(10, 0, 0), V(10, 34, 0)),
    Part.LineSegment(V(10, 34, 0), V(0, 34, 0)),
], False)
sketch19.addConstraint([
    Sketcher.Constraint("Coincident", 0, 2, 1, 1),
    Sketcher.Constraint("Coincident", 1, 2, 2, 1),
    Sketcher.Constraint("Coincident", 2, 2, 3, 1),
    Sketcher.Constraint("Coincident", 3, 2, 0, 1),
    Sketcher.Constraint("Vertical", 0),
    Sketcher.Constraint("Horizontal", 1),
    Sketcher.Constraint("Vertical", 2),
    Sketcher.Constraint("Horizontal", 3),
    Sketcher.Constraint("Coincident", 0, 2, -1, 1),
    Sketcher.Constraint("DistanceX", 1, 1, 1, 2, Q("10 mm")),
    Sketcher.Constraint("DistanceY", 0, 2, 0, 1, Q("34 mm")),
])
sketch19.setExpression("Constraints[9]", "Params.sketch19_width")
sketch19.setExpression("Constraints[10]", "Params.sketch19_height")
pad19 = doc.addObject("PartDesign::Pad", "Pad018")
body27.addObject(pad19)
pad19.Profile = sketch19
pad19.setExpression("Length", "Params.pad19_length")
body28 = doc.addObject("PartDesign::Body", "Body027")
doc.recompute()

body27.Placement = App.Placement(V(0, 0, 0), App.Rotation(V(0, 1, 0), 351))
boolean9 = doc.addObject("PartDesign::Boolean", "Boolean008")
body28.addObject(boolean9)
boolean9.Type = "Fuse"
boolean9.addObjects([body27])
body29 = doc.addObject("PartDesign::Body", "Body028")
doc.recompute()

body28.Placement = App.Placement(V(-3.3, 3, 18.2), App.Rotation(V(0, 0, 1), 0))
boolean10 = doc.addObject("PartDesign::Boolean", "Boolean009")
body29.addObject(boolean10)
boolean10.Type = "Fuse"
boolean10.addObjects([body28])
body30 = doc.addObject("PartDesign::Body", "Body029")

sketch20 = doc.addObject("Sketcher::SketchObject", "Sketch019")
body30.addObject(sketch20)
sketch20.AttachmentSupport = (doc.getObject("XY_Plane029"), [""])
sketch20.MapMode = "FlatFace"
sketch20.AttachmentOffset = App.Placement(V(0, 0, 3), App.Rotation())
sketch20.addGeometry([
    Part.LineSegment(V(-2, 37, 0), V(-2, 3, 0)),
    Part.LineSegment(V(-2, 3, 0), V(6, 3, 0)),
    Part.LineSegment(V(6, 3, 0), V(6, 37, 0)),
    Part.LineSegment(V(6, 37, 0), V(-2, 37, 0)),
], False)
sketch20.addConstraint([
    Sketcher.Constraint("Coincident", 0, 2, 1, 1),
    Sketcher.Constraint("Coincident", 1, 2, 2, 1),
    Sketcher.Constraint("Coincident", 2, 2, 3, 1),
    Sketcher.Constraint("Coincident", 3, 2, 0, 1),
    Sketcher.Constraint("Vertical", 0),
    Sketcher.Constraint("Horizontal", 1),
    Sketcher.Constraint("Vertical", 2),
    Sketcher.Constraint("Horizontal", 3),
    Sketcher.Constraint("DistanceY", 0, 2, 0, 1, Q("34 mm")),
    Sketcher.Constraint("DistanceX", 1, 1, 1, 2, Q("8.6 mm")),
    Sketcher.Constraint("DistanceY", -1, 1, 0, 2, Q("3 mm")),
    Sketcher.Constraint("DistanceX", 0, 2, -1, 1, Q("2.19 mm")),
])
sketch20.setExpression("Constraints[8]", "Params.sketch20_height")
sketch20.setExpression("Constraints[9]", "Params.sketch20_width")
pad20 = doc.addObject("PartDesign::Pad", "Pad019")
body30.addObject(pad20)
pad20.Profile = sketch20
pad20.setExpression("Length", "Params.pad20_length")
body31 = doc.addObject("PartDesign::Body", "Body030")

sketch21 = doc.addObject("Sketcher::SketchObject", "Sketch020")
body31.addObject(sketch21)
sketch21.AttachmentSupport = (doc.getObject("XY_Plane030"), [""])
sketch21.MapMode = "FlatFace"
sketch21.addGeometry([
    Part.LineSegment(V(0, 40, 0), V(0, 0, 0)),
    Part.LineSegment(V(0, 0, 0), V(4, 0, 0)),
    Part.LineSegment(V(4, 0, 0), V(4, 40, 0)),
    Part.LineSegment(V(4, 40, 0), V(0, 40, 0)),
], False)
sketch21.addConstraint([
    Sketcher.Constraint("Coincident", 0, 2, 1, 1),
    Sketcher.Constraint("Coincident", 1, 2, 2, 1),
    Sketcher.Constraint("Coincident", 2, 2, 3, 1),
    Sketcher.Constraint("Coincident", 3, 2, 0, 1),
    Sketcher.Constraint("Vertical", 0),
    Sketcher.Constraint("Horizontal", 1),
    Sketcher.Constraint("Vertical", 2),
    Sketcher.Constraint("Horizontal", 3),
    Sketcher.Constraint("Coincident", 0, 2, -1, 1),
    Sketcher.Constraint("DistanceX", 1, 1, 1, 2, Q("4 mm")),
    Sketcher.Constraint("DistanceY", 0, 2, 0, 1, Q("40 mm")),
])
sketch21.setExpression("Constraints[9]", "Params.sketch21_width")
sketch21.setExpression("Constraints[10]", "Params.sketch21_height")
pad21 = doc.addObject("PartDesign::Pad", "Pad020")
body31.addObject(pad21)
pad21.Profile = sketch21
pad21.setExpression("Length", "Params.pad21_length")
body32 = doc.addObject("PartDesign::Body", "Body031")
doc.recompute()

body31.Placement = App.Placement(V(21.6, 0, 22), App.Rotation(V(0, -1, 0), 30))
boolean11 = doc.addObject("PartDesign::Boolean", "Boolean010")
body32.addObject(boolean11)
boolean11.Type = "Fuse"
boolean11.addObjects([body31])
body33 = doc.addObject("PartDesign::Body", "Body032")

sketch22 = doc.addObject("Sketcher::SketchObject", "Sketch021")
body33.addObject(sketch22)
sketch22.AttachmentSupport = (doc.getObject("XY_Plane032"), [""])
sketch22.MapMode = "FlatFace"
sketch22.addGeometry([
    Part.LineSegment(V(0, 40, 0), V(0, 0, 0)),
    Part.LineSegment(V(0, 0, 0), V(10, 0, 0)),
    Part.LineSegment(V(10, 0, 0), V(10, 40, 0)),
    Part.LineSegment(V(10, 40, 0), V(0, 40, 0)),
], False)
sketch22.addConstraint([
    Sketcher.Constraint("Coincident", 0, 2, 1, 1),
    Sketcher.Constraint("Coincident", 1, 2, 2, 1),
    Sketcher.Constraint("Coincident", 2, 2, 3, 1),
    Sketcher.Constraint("Coincident", 3, 2, 0, 1),
    Sketcher.Constraint("Vertical", 0),
    Sketcher.Constraint("Horizontal", 1),
    Sketcher.Constraint("Vertical", 2),
    Sketcher.Constraint("Horizontal", 3),
    Sketcher.Constraint("Coincident", 0, 2, -1, 1),
    Sketcher.Constraint("DistanceX", 1, 1, 1, 2, Q("10 mm")),
    Sketcher.Constraint("DistanceY", 0, 2, 0, 1, Q("40 mm")),
])
sketch22.setExpression("Constraints[9]", "Params.sketch22_width")
sketch22.setExpression("Constraints[10]", "Params.sketch22_height")
pad22 = doc.addObject("PartDesign::Pad", "Pad021")
body33.addObject(pad22)
pad22.Profile = sketch22
pad22.setExpression("Length", "Params.pad22_length")
body34 = doc.addObject("PartDesign::Body", "Body033")
doc.recompute()

body33.Placement = App.Placement(V(0, 0, 0), App.Rotation(V(0, 1, 0), 9))
boolean12 = doc.addObject("PartDesign::Boolean", "Boolean011")
body34.addObject(boolean12)
boolean12.Type = "Fuse"
boolean12.addObjects([body33])
body35 = doc.addObject("PartDesign::Body", "Body034")
doc.recompute()

body34.Placement = App.Placement(V(15.3, 0, 25.6), App.Rotation(V(0, 0, 1), 0))
boolean13 = doc.addObject("PartDesign::Boolean", "Boolean012")
body35.addObject(boolean13)
boolean13.Type = "Fuse"
boolean13.addObjects([body34])
body36 = doc.addObject("PartDesign::Body", "Body035")

sketch23 = doc.addObject("Sketcher::SketchObject", "Sketch022")
body36.addObject(sketch23)
sketch23.AttachmentSupport = (doc.getObject("XY_Plane035"), [""])
sketch23.MapMode = "FlatFace"
sketch23.addGeometry([
    Part.LineSegment(V(0, 40, 0), V(0, 0, 0)),
    Part.LineSegment(V(0, 0, 0), V(2.8, 0, 0)),
    Part.LineSegment(V(2.8, 0, 0), V(2.8, 40, 0)),
    Part.LineSegment(V(2.8, 40, 0), V(0, 40, 0)),
], False)
sketch23.addConstraint([
    Sketcher.Constraint("Coincident", 0, 2, 1, 1),
    Sketcher.Constraint("Coincident", 1, 2, 2, 1),
    Sketcher.Constraint("Coincident", 2, 2, 3, 1),
    Sketcher.Constraint("Coincident", 3, 2, 0, 1),
    Sketcher.Constraint("Vertical", 0),
    Sketcher.Constraint("Horizontal", 1),
    Sketcher.Constraint("Vertical", 2),
    Sketcher.Constraint("Horizontal", 3),
    Sketcher.Constraint("Coincident", 0, 2, -1, 1),
    Sketcher.Constraint("DistanceY", 0, 2, 0, 1, Q("40 mm")),
    Sketcher.Constraint("DistanceX", 1, 1, 1, 2, Q("2.8 mm")),
])
sketch23.setExpression("Constraints[9]", "Params.sketch23_height")
sketch23.setExpression("Constraints[10]", "Params.sketch23_width")
pad23 = doc.addObject("PartDesign::Pad", "Pad022")
body36.addObject(pad23)
pad23.Profile = sketch23
pad23.setExpression("Length", "Params.pad23_length")
body37 = doc.addObject("PartDesign::Body", "Body036")
doc.recompute()

body36.Placement = App.Placement(V(0, 0, 0), App.Rotation(V(0, 1, 0), 45))
boolean14 = doc.addObject("PartDesign::Boolean", "Boolean013")
body37.addObject(boolean14)
boolean14.Type = "Fuse"
boolean14.addObjects([body36])
body38 = doc.addObject("PartDesign::Body", "Body037")
doc.recompute()

body37.Placement = App.Placement(V(9.1, 0, 24), App.Rotation(V(0, 0, 1), 0))
boolean15 = doc.addObject("PartDesign::Boolean", "Boolean014")
body38.addObject(boolean15)
boolean15.Type = "Fuse"
boolean15.addObjects([body37])
body39 = doc.addObject("PartDesign::Body", "Body038")

sketch24 = doc.addObject("Sketcher::SketchObject", "Sketch023")
body39.addObject(sketch24)
sketch24.AttachmentSupport = (doc.getObject("XY_Plane038"), [""])
sketch24.MapMode = "FlatFace"
sketch24.addGeometry([
    Part.LineSegment(V(0, 40, 0), V(0, 0, 0)),
    Part.LineSegment(V(0, 0, 0), V(7, 0, 0)),
    Part.LineSegment(V(7, 0, 0), V(7, 40, 0)),
    Part.LineSegment(V(7, 40, 0), V(0, 40, 0)),
], False)
sketch24.addConstraint([
    Sketcher.Constraint("Coincident", 0, 2, 1, 1),
    Sketcher.Constraint("Coincident", 1, 2, 2, 1),
    Sketcher.Constraint("Coincident", 2, 2, 3, 1),
    Sketcher.Constraint("Coincident", 3, 2, 0, 1),
    Sketcher.Constraint("Vertical", 0),
    Sketcher.Constraint("Horizontal", 1),
    Sketcher.Constraint("Vertical", 2),
    Sketcher.Constraint("Horizontal", 3),
    Sketcher.Constraint("Coincident", 0, 2, -1, 1),
    Sketcher.Constraint("DistanceX", 1, 1, 1, 2, Q("7 mm")),
    Sketcher.Constraint("DistanceY", 0, 2, 0, 1, Q("40 mm")),
])
sketch24.setExpression("Constraints[9]", "Params.sketch24_width")
sketch24.setExpression("Constraints[10]", "Params.sketch24_height")
pad24 = doc.addObject("PartDesign::Pad", "Pad023")
body39.addObject(pad24)
pad24.Profile = sketch24
pad24.setExpression("Length", "Params.pad24_length")
body40 = doc.addObject("PartDesign::Body", "Body039")
doc.recompute()

body39.Placement = App.Placement(V(0, 0, 0), App.Rotation(V(0, 1, 0), 351))
boolean16 = doc.addObject("PartDesign::Boolean", "Boolean015")
body40.addObject(boolean16)
boolean16.Type = "Fuse"
boolean16.addObjects([body39])
body41 = doc.addObject("PartDesign::Body", "Body040")
doc.recompute()

body40.Placement = App.Placement(V(9, 0, 24), App.Rotation(V(0, 0, 1), 0))
boolean17 = doc.addObject("PartDesign::Boolean", "Boolean016")
body41.addObject(boolean17)
boolean17.Type = "Fuse"
boolean17.addObjects([body40])
body42 = doc.addObject("PartDesign::Body", "Body041")

sketch25 = doc.addObject("Sketcher::SketchObject", "Sketch024")
body42.addObject(sketch25)
sketch25.AttachmentSupport = (doc.getObject("XY_Plane041"), [""])
sketch25.MapMode = "FlatFace"
sketch25.AttachmentOffset = App.Placement(V(0, 0, 22), App.Rotation())
sketch25.addGeometry([
    Part.LineSegment(V(11, 40, 0), V(11, 0, 0)),
    Part.LineSegment(V(11, 0, 0), V(22, 0, 0)),
    Part.LineSegment(V(22, 0, 0), V(22, 40, 0)),
    Part.LineSegment(V(22, 40, 0), V(11, 40, 0)),
], False)
sketch25.addConstraint([
    Sketcher.Constraint("Coincident", 0, 2, 1, 1),
    Sketcher.Constraint("Coincident", 1, 2, 2, 1),
    Sketcher.Constraint("Coincident", 2, 2, 3, 1),
    Sketcher.Constraint("Coincident", 3, 2, 0, 1),
    Sketcher.Constraint("Vertical", 0),
    Sketcher.Constraint("Horizontal", 1),
    Sketcher.Constraint("Vertical", 2),
    Sketcher.Constraint("Horizontal", 3),
    Sketcher.Constraint("PointOnObject", 0, 2, -1),
    Sketcher.Constraint("DistanceY", 0, 2, 0, 1, Q("40 mm")),
    Sketcher.Constraint("DistanceX", 1, 1, 1, 2, Q("10.5 mm")),
    Sketcher.Constraint("DistanceX", -1, 1, 0, 2, Q("11.15 mm")),
])
sketch25.setExpression("Constraints[9]", "Params.sketch25_height")
sketch25.setExpression("Constraints[10]", "Params.sketch25_width")
pad25 = doc.addObject("PartDesign::Pad", "Pad024")
body42.addObject(pad25)
pad25.Profile = sketch25
pad25.setExpression("Length", "Params.pad25_length")
body43 = doc.addObject("PartDesign::Body", "Body042")

sketch26 = doc.addObject("Sketcher::SketchObject", "Sketch025")
body43.addObject(sketch26)
sketch26.AttachmentSupport = (doc.getObject("XY_Plane042"), [""])
sketch26.MapMode = "FlatFace"
sketch26.addGeometry([
    Part.LineSegment(V(0, 40, 0), V(0, 0, 0)),
    Part.LineSegment(V(0, 0, 0), V(34, 0, 0)),
    Part.LineSegment(V(34, 0, 0), V(34, 40, 0)),
    Part.LineSegment(V(34, 40, 0), V(0, 40, 0)),
], False)
sketch26.addConstraint([
    Sketcher.Constraint("Coincident", 0, 2, 1, 1),
    Sketcher.Constraint("Coincident", 1, 2, 2, 1),
    Sketcher.Constraint("Coincident", 2, 2, 3, 1),
    Sketcher.Constraint("Coincident", 3, 2, 0, 1),
    Sketcher.Constraint("Vertical", 0),
    Sketcher.Constraint("Horizontal", 1),
    Sketcher.Constraint("Vertical", 2),
    Sketcher.Constraint("Horizontal", 3),
    Sketcher.Constraint("Coincident", 0, 2, -1, 1),
    Sketcher.Constraint("DistanceX", 1, 1, 1, 2, Q("34 mm")),
    Sketcher.Constraint("DistanceY", 0, 2, 0, 1, Q("40 mm")),
])
sketch26.setExpression("Constraints[9]", "Params.sketch26_width")
sketch26.setExpression("Constraints[10]", "Params.sketch26_height")
pad26 = doc.addObject("PartDesign::Pad", "Pad025")
body43.addObject(pad26)
pad26.Profile = sketch26
pad26.setExpression("Length", "Params.pad26_length")
doc.recompute()

boolean18 = doc.addObject("PartDesign::Boolean", "Boolean017")
body43.addObject(boolean18)
boolean18.Type = "Cut"
boolean18.addObjects([body42])
doc.recompute()

boolean19 = doc.addObject("PartDesign::Boolean", "Boolean018")
body43.addObject(boolean19)
boolean19.Type = "Cut"
boolean19.addObjects([body41])
doc.recompute()

boolean20 = doc.addObject("PartDesign::Boolean", "Boolean019")
body43.addObject(boolean20)
boolean20.Type = "Cut"
boolean20.addObjects([body38])
doc.recompute()

boolean21 = doc.addObject("PartDesign::Boolean", "Boolean020")
body43.addObject(boolean21)
boolean21.Type = "Cut"
boolean21.addObjects([body35])
doc.recompute()

boolean22 = doc.addObject("PartDesign::Boolean", "Boolean021")
body43.addObject(boolean22)
boolean22.Type = "Cut"
boolean22.addObjects([body32])
doc.recompute()

boolean23 = doc.addObject("PartDesign::Boolean", "Boolean022")
body43.addObject(boolean23)
boolean23.Type = "Cut"
boolean23.addObjects([body30])
doc.recompute()

boolean24 = doc.addObject("PartDesign::Boolean", "Boolean023")
body43.addObject(boolean24)
boolean24.Type = "Cut"
boolean24.addObjects([body29])
doc.recompute()

boolean25 = doc.addObject("PartDesign::Boolean", "Boolean024")
body43.addObject(boolean25)
boolean25.Type = "Cut"
boolean25.addObjects([body26])
doc.recompute()

boolean26 = doc.addObject("PartDesign::Boolean", "Boolean025")
body43.addObject(boolean26)
boolean26.Type = "Cut"
boolean26.addObjects([body25])
doc.recompute()

boolean27 = doc.addObject("PartDesign::Boolean", "Boolean026")
body43.addObject(boolean27)
boolean27.Type = "Cut"
boolean27.addObjects([body22])
doc.recompute()

boolean28 = doc.addObject("PartDesign::Boolean", "Boolean027")
body43.addObject(boolean28)
boolean28.Type = "Cut"
boolean28.addObjects([body21])
doc.recompute()

boolean29 = doc.addObject("PartDesign::Boolean", "Boolean028")
body43.addObject(boolean29)
boolean29.Type = "Cut"
boolean29.addObjects([body18])
doc.recompute()

boolean30 = doc.addObject("PartDesign::Boolean", "Boolean029")
body43.addObject(boolean30)
boolean30.Type = "Cut"
boolean30.addObjects([body17])
doc.recompute()

boolean31 = doc.addObject("PartDesign::Boolean", "Boolean030")
body43.addObject(boolean31)
boolean31.Type = "Fuse"
boolean31.addObjects([body14])
doc.recompute()

boolean32 = doc.addObject("PartDesign::Boolean", "Boolean031")
body43.addObject(boolean32)
boolean32.Type = "Cut"
boolean32.addObjects([body13])
doc.recompute()

boolean33 = doc.addObject("PartDesign::Boolean", "Boolean032")
body43.addObject(boolean33)
boolean33.Type = "Cut"
boolean33.addObjects([body12])
doc.recompute()

boolean34 = doc.addObject("PartDesign::Boolean", "Boolean033")
body43.addObject(boolean34)
boolean34.Type = "Cut"
boolean34.addObjects([body11])
body44 = doc.addObject("PartDesign::Body", "Body043")

sketch27 = doc.addObject("Sketcher::SketchObject", "Sketch026")
body44.addObject(sketch27)
sketch27.AttachmentSupport = (doc.getObject("XY_Plane043"), [""])
sketch27.MapMode = "FlatFace"
sketch27.AttachmentOffset = App.Placement(V(0, 0, 42), App.Rotation())
sketch27.addGeometry([
    Part.LineSegment(V(28, 3, 0), V(28, 0, 0)),
    Part.LineSegment(V(28, 0, 0), V(34, 0, 0)),
    Part.LineSegment(V(34, 0, 0), V(34, 3, 0)),
    Part.LineSegment(V(34, 3, 0), V(28, 3, 0)),
], False)
sketch27.addConstraint([
    Sketcher.Constraint("Coincident", 0, 2, 1, 1),
    Sketcher.Constraint("Coincident", 1, 2, 2, 1),
    Sketcher.Constraint("Coincident", 2, 2, 3, 1),
    Sketcher.Constraint("Coincident", 3, 2, 0, 1),
    Sketcher.Constraint("Vertical", 0),
    Sketcher.Constraint("Horizontal", 1),
    Sketcher.Constraint("Vertical", 2),
    Sketcher.Constraint("Horizontal", 3),
    Sketcher.Constraint("PointOnObject", 0, 2, -1),
    Sketcher.Constraint("DistanceX", 1, 1, 1, 2, Q("6 mm")),
    Sketcher.Constraint("DistanceY", 0, 2, 0, 1, Q("3 mm")),
    Sketcher.Constraint("DistanceX", -1, 1, 0, 2, Q("28 mm")),
])
sketch27.setExpression("Constraints[9]", "Params.sketch27_width")
sketch27.setExpression("Constraints[10]", "Params.sketch27_height")
pad27 = doc.addObject("PartDesign::Pad", "Pad026")
body44.addObject(pad27)
pad27.Profile = sketch27
pad27.setExpression("Length", "Params.pad27_length")
doc.recompute()

boolean35 = doc.addObject("PartDesign::Boolean", "Boolean034")
body44.addObject(boolean35)
boolean35.Type = "Fuse"
boolean35.addObjects([body43])
doc.recompute()

boolean36 = doc.addObject("PartDesign::Boolean", "Boolean035")
body44.addObject(boolean36)
boolean36.Type = "Fuse"
boolean36.addObjects([body10])
doc.recompute()

boolean37 = doc.addObject("PartDesign::Boolean", "Boolean036")
body44.addObject(boolean37)
boolean37.Type = "Fuse"
boolean37.addObjects([body9])
doc.recompute()

boolean38 = doc.addObject("PartDesign::Boolean", "Boolean037")
body44.addObject(boolean38)
boolean38.Type = "Fuse"
boolean38.addObjects([body8])
doc.recompute()

boolean39 = doc.addObject("PartDesign::Boolean", "Boolean038")
body44.addObject(boolean39)
boolean39.Type = "Cut"
boolean39.addObjects([body7])
doc.recompute()

boolean40 = doc.addObject("PartDesign::Boolean", "Boolean039")
body44.addObject(boolean40)
boolean40.Type = "Cut"
boolean40.addObjects([body4])
doc.recompute()

boolean41 = doc.addObject("PartDesign::Boolean", "Boolean040")
body44.addObject(boolean41)
boolean41.Type = "Cut"
boolean41.addObjects([body3])
doc.recompute()

boolean42 = doc.addObject("PartDesign::Boolean", "Boolean041")
body44.addObject(boolean42)
boolean42.Type = "Cut"
boolean42.addObjects([body2])
doc.recompute()

boolean43 = doc.addObject("PartDesign::Boolean", "Boolean042")
body44.addObject(boolean43)
boolean43.Type = "Cut"
boolean43.addObjects([body])

doc.recompute()
